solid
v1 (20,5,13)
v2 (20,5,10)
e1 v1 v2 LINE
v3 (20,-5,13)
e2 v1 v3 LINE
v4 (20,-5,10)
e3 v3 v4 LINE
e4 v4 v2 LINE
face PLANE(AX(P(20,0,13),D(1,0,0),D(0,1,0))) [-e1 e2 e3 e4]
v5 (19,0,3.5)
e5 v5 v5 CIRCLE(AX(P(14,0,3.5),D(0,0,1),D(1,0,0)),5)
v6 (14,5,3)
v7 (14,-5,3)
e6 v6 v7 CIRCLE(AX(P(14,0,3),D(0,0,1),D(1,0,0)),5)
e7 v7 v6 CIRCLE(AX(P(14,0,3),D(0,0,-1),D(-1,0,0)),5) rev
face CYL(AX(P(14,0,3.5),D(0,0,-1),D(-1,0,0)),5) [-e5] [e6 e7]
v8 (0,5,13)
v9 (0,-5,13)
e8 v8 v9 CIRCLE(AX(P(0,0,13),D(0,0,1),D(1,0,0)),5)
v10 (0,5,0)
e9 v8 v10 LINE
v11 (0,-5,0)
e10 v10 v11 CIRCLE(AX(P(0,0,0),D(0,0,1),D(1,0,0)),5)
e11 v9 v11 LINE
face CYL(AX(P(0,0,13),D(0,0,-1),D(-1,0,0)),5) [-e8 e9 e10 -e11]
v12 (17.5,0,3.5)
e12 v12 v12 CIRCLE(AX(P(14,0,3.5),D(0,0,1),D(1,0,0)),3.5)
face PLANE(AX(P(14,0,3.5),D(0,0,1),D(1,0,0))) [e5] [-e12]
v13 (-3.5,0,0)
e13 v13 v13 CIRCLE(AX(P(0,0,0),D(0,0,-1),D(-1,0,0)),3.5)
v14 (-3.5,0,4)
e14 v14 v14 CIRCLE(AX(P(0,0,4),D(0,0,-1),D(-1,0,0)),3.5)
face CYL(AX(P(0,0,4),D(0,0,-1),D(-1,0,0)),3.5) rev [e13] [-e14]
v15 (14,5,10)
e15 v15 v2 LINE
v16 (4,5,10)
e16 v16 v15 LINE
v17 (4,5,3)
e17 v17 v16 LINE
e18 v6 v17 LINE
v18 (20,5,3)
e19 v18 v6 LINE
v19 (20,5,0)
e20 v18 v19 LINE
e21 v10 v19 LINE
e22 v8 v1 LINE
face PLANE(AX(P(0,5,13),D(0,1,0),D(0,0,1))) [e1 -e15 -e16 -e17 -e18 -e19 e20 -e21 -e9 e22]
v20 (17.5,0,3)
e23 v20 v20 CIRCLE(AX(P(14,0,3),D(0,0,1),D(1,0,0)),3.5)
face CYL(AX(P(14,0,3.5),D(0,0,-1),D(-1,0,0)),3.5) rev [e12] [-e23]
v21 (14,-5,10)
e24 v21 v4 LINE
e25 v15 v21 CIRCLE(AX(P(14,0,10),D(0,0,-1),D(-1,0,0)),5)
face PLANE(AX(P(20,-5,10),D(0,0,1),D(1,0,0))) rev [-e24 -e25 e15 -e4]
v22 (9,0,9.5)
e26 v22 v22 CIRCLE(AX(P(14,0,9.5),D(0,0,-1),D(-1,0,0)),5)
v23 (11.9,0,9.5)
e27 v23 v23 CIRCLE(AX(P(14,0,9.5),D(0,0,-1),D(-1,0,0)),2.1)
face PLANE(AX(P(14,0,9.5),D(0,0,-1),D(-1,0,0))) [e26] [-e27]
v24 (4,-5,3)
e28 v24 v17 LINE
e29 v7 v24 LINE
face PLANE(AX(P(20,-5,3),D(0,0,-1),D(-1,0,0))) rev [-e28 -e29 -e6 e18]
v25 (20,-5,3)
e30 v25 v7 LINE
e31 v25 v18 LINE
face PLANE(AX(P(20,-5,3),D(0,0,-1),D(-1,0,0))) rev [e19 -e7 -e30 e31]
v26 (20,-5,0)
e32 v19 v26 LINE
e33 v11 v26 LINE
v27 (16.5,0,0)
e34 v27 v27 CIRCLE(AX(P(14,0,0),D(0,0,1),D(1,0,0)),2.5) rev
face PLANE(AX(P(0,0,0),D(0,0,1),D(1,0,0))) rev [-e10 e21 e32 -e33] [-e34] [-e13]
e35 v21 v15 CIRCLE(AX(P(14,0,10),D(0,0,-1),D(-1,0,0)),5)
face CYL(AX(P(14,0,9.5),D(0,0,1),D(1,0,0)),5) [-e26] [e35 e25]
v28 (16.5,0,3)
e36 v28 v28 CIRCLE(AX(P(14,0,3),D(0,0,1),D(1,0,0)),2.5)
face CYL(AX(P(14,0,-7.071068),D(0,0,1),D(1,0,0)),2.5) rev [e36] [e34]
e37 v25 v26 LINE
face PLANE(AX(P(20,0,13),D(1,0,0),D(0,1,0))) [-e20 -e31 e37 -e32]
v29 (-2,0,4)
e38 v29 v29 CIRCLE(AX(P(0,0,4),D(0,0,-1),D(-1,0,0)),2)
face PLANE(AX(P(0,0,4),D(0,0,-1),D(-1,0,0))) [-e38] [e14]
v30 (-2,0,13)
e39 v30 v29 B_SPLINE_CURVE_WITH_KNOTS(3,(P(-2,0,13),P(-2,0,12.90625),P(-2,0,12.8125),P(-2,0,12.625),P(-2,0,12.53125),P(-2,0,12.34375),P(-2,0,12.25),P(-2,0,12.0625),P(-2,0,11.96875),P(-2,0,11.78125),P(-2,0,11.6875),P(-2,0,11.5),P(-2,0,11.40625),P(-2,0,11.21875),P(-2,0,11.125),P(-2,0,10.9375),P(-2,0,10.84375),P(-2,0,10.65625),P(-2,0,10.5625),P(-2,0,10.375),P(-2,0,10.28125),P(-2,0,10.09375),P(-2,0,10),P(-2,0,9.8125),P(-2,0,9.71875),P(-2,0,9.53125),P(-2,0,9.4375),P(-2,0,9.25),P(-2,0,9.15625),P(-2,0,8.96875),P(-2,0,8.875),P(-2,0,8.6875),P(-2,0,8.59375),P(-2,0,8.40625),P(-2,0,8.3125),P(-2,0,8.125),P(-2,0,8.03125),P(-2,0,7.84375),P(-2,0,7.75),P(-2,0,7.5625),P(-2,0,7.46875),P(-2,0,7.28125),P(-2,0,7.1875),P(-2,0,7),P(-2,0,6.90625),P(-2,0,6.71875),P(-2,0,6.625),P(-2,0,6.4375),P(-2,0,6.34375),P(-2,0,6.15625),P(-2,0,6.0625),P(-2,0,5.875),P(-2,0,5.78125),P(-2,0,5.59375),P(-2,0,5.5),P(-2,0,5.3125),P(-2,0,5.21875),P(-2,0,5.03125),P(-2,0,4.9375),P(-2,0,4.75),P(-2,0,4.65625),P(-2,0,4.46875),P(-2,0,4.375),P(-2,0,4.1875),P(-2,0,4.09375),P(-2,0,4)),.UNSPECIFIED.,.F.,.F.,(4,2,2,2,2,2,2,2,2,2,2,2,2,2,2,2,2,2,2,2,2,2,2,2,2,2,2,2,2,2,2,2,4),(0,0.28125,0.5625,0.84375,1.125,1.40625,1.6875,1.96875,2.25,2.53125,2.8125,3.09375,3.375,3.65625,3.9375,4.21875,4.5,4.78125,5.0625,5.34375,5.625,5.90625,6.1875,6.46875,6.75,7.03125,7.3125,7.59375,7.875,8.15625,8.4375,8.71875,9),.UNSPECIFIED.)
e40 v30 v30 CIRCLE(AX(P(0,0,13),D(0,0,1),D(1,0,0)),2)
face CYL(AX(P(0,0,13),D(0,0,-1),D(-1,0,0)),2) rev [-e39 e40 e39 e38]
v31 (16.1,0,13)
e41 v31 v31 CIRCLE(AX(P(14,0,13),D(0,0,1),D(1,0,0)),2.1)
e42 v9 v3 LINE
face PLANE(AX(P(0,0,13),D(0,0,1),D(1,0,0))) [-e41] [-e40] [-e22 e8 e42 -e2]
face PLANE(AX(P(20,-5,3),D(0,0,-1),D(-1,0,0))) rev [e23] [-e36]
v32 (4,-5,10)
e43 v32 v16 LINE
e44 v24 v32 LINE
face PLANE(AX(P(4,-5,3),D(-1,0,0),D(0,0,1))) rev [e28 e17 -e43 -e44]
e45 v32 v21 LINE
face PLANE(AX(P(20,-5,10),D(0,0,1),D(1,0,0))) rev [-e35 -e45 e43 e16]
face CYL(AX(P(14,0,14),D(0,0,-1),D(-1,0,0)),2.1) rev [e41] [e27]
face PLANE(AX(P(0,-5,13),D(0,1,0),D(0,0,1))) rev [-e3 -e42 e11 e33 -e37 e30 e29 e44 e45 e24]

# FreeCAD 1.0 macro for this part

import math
import FreeCAD as App
import Part
import Sketcher

doc = App.newDocument("Part")
params = doc.addObject("Spreadsheet::Sheet", "Params")
for row, (alias, value) in enumerate([
    ("sketch1_radius", "5 mm"),
    ("sketch1_radius2", "2 mm"),
    ("sketch1_width", "20 mm"),
    ("pad1_length", "13 mm"),
    ("sketch2_width", "16 mm"),
    ("sketch2_height", "7 mm"),
    ("pocket1_length", "10 mm"),
    ("sketch3_diameter", "5 mm"),
    ("pocket2_length", "3 mm"),
    ("sketch4_diameter", "7 mm"),
    ("sketch4_diameter2", "4 mm"),
    ("pocket3_length", "4 mm"),
    ("sketch5_diameter", "4.2 mm"),
    ("pocket4_length", "4 mm"),
    ("sketch6_diameter", "10 mm"),
    ("sketch6_diameter2", "7 mm"),
    ("pad2_length", "0.5 mm"),
    ("sketch7_diameter", "10 mm"),
    ("sketch7_diameter2", "4.2 mm"),
    ("pad3_length", "0.5 mm"),
], start=1):
    params.set(f"A{row}", alias)
    params.set(f"B{row}", "=" + value)
    params.setAlias(f"B{row}", alias)

body = doc.addObject("PartDesign::Body", "Body")

# Sketch on XY plane
sketch1 = doc.addObject("Sketcher::SketchObject", "Sketch")
body.addObject(sketch1)
sketch1.AttachmentSupport = (doc.XY_Plane, [""])
sketch1.MapMode = "FlatFace"
sketch1.addGeometry([
    Part.ArcOfCircle(Part.Circle(App.Vector(0, 0, 0), App.Vector(0, 0, 1), 5), math.radians(90), math.radians(270)),  # 0
    Part.LineSegment(App.Vector(0, -5, 0), App.Vector(20, -5, 0)),  # 1
    Part.LineSegment(App.Vector(20, -5, 0), App.Vector(20, 5, 0)),  # 2
    Part.LineSegment(App.Vector(20, 5, 0), App.Vector(0, 5, 0)),  # 3
    Part.ArcOfCircle(Part.Circle(App.Vector(0, 0, 0), App.Vector(0, 0, 1), 2), math.radians(90), math.radians(270)),  # 4
    Part.ArcOfCircle(Part.Circle(App.Vector(0, 0, 0), App.Vector(0, 0, 1), 2), math.radians(0), math.radians(90)),  # 5
    Part.ArcOfCircle(Part.Circle(App.Vector(0, 0, 0), App.Vector(0, 0, 1), 2), math.radians(-90), math.radians(0)),  # 6
], False)
sketch1.addConstraint([
    Sketcher.Constraint("Tangent", 0, 2, 1, 1),
    Sketcher.Constraint("Coincident", 1, 2, 2, 1),
    Sketcher.Constraint("Coincident", 2, 2, 3, 1),
    Sketcher.Constraint("Tangent", 3, 2, 0, 1),
    Sketcher.Constraint("Tangent", 4, 1, 5, 2),
    Sketcher.Constraint("Tangent", 5, 1, 6, 2),
    Sketcher.Constraint("Tangent", 6, 1, 4, 2),
    Sketcher.Constraint("Horizontal", 1),
    Sketcher.Constraint("Vertical", 2),
    Sketcher.Constraint("Horizontal", 3),
    Sketcher.Constraint("Coincident", 0, 3, -1, 1),
    Sketcher.Constraint("Coincident", 4, 3, -1, 1),
    Sketcher.Constraint("PointOnObject", 4, 1, -2),
    Sketcher.Constraint("PointOnObject", 5, 1, -1),
    Sketcher.Constraint("PointOnObject", 6, 1, -2),
    Sketcher.Constraint("Radius", 0, 5.0),
    Sketcher.Constraint("Radius", 4, 2.0),
    Sketcher.Constraint("DistanceX", 1, 1, 1, 2, 20.0),
])
sketch1.setExpression("Constraints[15]", "Params.sketch1_radius")
sketch1.setExpression("Constraints[16]", "Params.sketch1_radius2")
sketch1.setExpression("Constraints[17]", "Params.sketch1_width")
pad1 = doc.addObject("PartDesign::Pad", "Pad")
body.addObject(pad1)
pad1.Profile = sketch1
pad1.setExpression("Length", "Params.pad1_length")

# Sketch on XZ plane
sketch2 = doc.addObject("Sketcher::SketchObject", "Sketch001")
body.addObject(sketch2)
sketch2.AttachmentSupport = (doc.XZ_Plane, [""])
sketch2.MapMode = "FlatFace"
sketch2.AttachmentOffset = App.Placement(App.Vector(0, 0, -5), App.Rotation())
sketch2.addGeometry([
    Part.LineSegment(App.Vector(4, 3, 0), App.Vector(4, 10, 0)),
    Part.LineSegment(App.Vector(4, 10, 0), App.Vector(20, 10, 0)),
    Part.LineSegment(App.Vector(20, 10, 0), App.Vector(20, 3, 0)),
    Part.LineSegment(App.Vector(20, 3, 0), App.Vector(4, 3, 0)),
], False)
sketch2.addConstraint([
    Sketcher.Constraint("Coincident", 0, 2, 1, 1),
    Sketcher.Constraint("Coincident", 1, 2, 2, 1),
    Sketcher.Constraint("Coincident", 2, 2, 3, 1),
    Sketcher.Constraint("Coincident", 3, 2, 0, 1),
    Sketcher.Constraint("Vertical", 0),
    Sketcher.Constraint("Horizontal", 1),
    Sketcher.Constraint("Vertical", 2),
    Sketcher.Constraint("Horizontal", 3),
    Sketcher.Constraint("DistanceX", 1, 1, 1, 2, 16.0),
    Sketcher.Constraint("DistanceY", 0, 1, 0, 2, 7.0),
    Sketcher.Constraint("DistanceX", -1, 1, 0, 2, 4.0),
    Sketcher.Constraint("DistanceY", -1, 1, 0, 2, 10.0),
])
sketch2.setExpression("Constraints[8]", "Params.sketch2_width")
sketch2.setExpression("Constraints[9]", "Params.sketch2_height")
pocket1 = doc.addObject("PartDesign::Pocket", "Pocket")
body.addObject(pocket1)
pocket1.Profile = sketch2
pocket1.setExpression("Length", "Params.pocket1_length")
pocket1.Reversed = True

# Sketch on XY plane
sketch3 = doc.addObject("Sketcher::SketchObject", "Sketch002")
body.addObject(sketch3)
sketch3.AttachmentSupport = (doc.XY_Plane, [""])
sketch3.MapMode = "FlatFace"
sketch3.AttachmentOffset = App.Placement(App.Vector(0, 0, 3), App.Rotation())
sketch3.addGeometry(Part.Circle(App.Vector(14, 0, 0), App.Vector(0, 0, 1), 2.5), False)
sketch3.addConstraint([
    Sketcher.Constraint("PointOnObject", 0, 3, -1),
    Sketcher.Constraint("Diameter", 0, 5.0),
    Sketcher.Constraint("DistanceX", -1, 1, 0, 3, 14.0),
])
sketch3.setExpression("Constraints[1]", "Params.sketch3_diameter")
pocket2 = doc.addObject("PartDesign::Pocket", "Pocket001")
body.addObject(pocket2)
pocket2.Profile = sketch3
pocket2.setExpression("Length", "Params.pocket2_length")

# Sketch on XY plane
sketch4 = doc.addObject("Sketcher::SketchObject", "Sketch003")
body.addObject(sketch4)
sketch4.AttachmentSupport = (doc.XY_Plane, [""])
sketch4.MapMode = "FlatFace"
sketch4.addGeometry([
    Part.Circle(App.Vector(0, 0, 0), App.Vector(0, 0, 1), 3.5),
    Part.Circle(App.Vector(0, 0, 0), App.Vector(0, 0, 1), 2),
], False)
sketch4.addConstraint([
    Sketcher.Constraint("Coincident", 0, 3, -1, 1),
    Sketcher.Constraint("Coincident", 1, 3, -1, 1),
    Sketcher.Constraint("Diameter", 0, 7.0),
    Sketcher.Constraint("Diameter", 1, 4.0),
])
sketch4.setExpression("Constraints[2]", "Params.sketch4_diameter")
sketch4.setExpression("Constraints[3]", "Params.sketch4_diameter2")
pocket3 = doc.addObject("PartDesign::Pocket", "Pocket002")
body.addObject(pocket3)
pocket3.Profile = sketch4
pocket3.setExpression("Length", "Params.pocket3_length")
pocket3.Reversed = True

# Sketch on XY plane
sketch5 = doc.addObject("Sketcher::SketchObject", "Sketch004")
body.addObject(sketch5)
sketch5.AttachmentSupport = (doc.XY_Plane, [""])
sketch5.MapMode = "FlatFace"
sketch5.AttachmentOffset = App.Placement(App.Vector(0, 0, 10), App.Rotation())
sketch5.addGeometry(Part.Circle(App.Vector(14, 0, 0), App.Vector(0, 0, 1), 2.1), False)
sketch5.addConstraint([
    Sketcher.Constraint("PointOnObject", 0, 3, -1),
    Sketcher.Constraint("Diameter", 0, 4.2),
    Sketcher.Constraint("DistanceX", -1, 1, 0, 3, 14.0),
])
sketch5.setExpression("Constraints[1]", "Params.sketch5_diameter")
pocket4 = doc.addObject("PartDesign::Pocket", "Pocket003")
body.addObject(pocket4)
pocket4.Profile = sketch5
pocket4.setExpression("Length", "Params.pocket4_length")
pocket4.Reversed = True

# Sketch on XY plane
sketch6 = doc.addObject("Sketcher::SketchObject", "Sketch005")
body.addObject(sketch6)
sketch6.AttachmentSupport = (doc.XY_Plane, [""])
sketch6.MapMode = "FlatFace"
sketch6.AttachmentOffset = App.Placement(App.Vector(0, 0, 3), App.Rotation())
sketch6.addGeometry([
    Part.Circle(App.Vector(14, 0, 0), App.Vector(0, 0, 1), 5),
    Part.Circle(App.Vector(14, 0, 0), App.Vector(0, 0, 1), 3.5),
], False)
sketch6.addConstraint([
    Sketcher.Constraint("Coincident", 1, 3, 0, 3),
    Sketcher.Constraint("PointOnObject", 0, 3, -1),
    Sketcher.Constraint("Diameter", 0, 10.0),
    Sketcher.Constraint("Diameter", 1, 7.0),
    Sketcher.Constraint("DistanceX", -1, 1, 0, 3, 14.0),
])
sketch6.setExpression("Constraints[2]", "Params.sketch6_diameter")
sketch6.setExpression("Constraints[3]", "Params.sketch6_diameter2")
pad2 = doc.addObject("PartDesign::Pad", "Pad001")
body.addObject(pad2)
pad2.Profile = sketch6
pad2.setExpression("Length", "Params.pad2_length")

# Sketch on XY plane
sketch7 = doc.addObject("Sketcher::SketchObject", "Sketch006")
body.addObject(sketch7)
sketch7.AttachmentSupport = (doc.XY_Plane, [""])
sketch7.MapMode = "FlatFace"
sketch7.AttachmentOffset = App.Placement(App.Vector(0, 0, 9.5), App.Rotation())
sketch7.addGeometry([
    Part.Circle(App.Vector(14, 0, 0), App.Vector(0, 0, 1), 5),
    Part.Circle(App.Vector(14, 0, 0), App.Vector(0, 0, 1), 2.1),
], False)
sketch7.addConstraint([
    Sketcher.Constraint("Coincident", 1, 3, 0, 3),
    Sketcher.Constraint("PointOnObject", 0, 3, -1),
    Sketcher.Constraint("Diameter", 0, 10.0),
    Sketcher.Constraint("Diameter", 1, 4.2),
    Sketcher.Constraint("DistanceX", -1, 1, 0, 3, 14.0),
])
sketch7.setExpression("Constraints[2]", "Params.sketch7_diameter")
sketch7.setExpression("Constraints[3]", "Params.sketch7_diameter2")
pad3 = doc.addObject("PartDesign::Pad", "Pad002")
body.addObject(pad3)
pad3.Profile = sketch7
pad3.setExpression("Length", "Params.pad3_length")

doc.recompute()
